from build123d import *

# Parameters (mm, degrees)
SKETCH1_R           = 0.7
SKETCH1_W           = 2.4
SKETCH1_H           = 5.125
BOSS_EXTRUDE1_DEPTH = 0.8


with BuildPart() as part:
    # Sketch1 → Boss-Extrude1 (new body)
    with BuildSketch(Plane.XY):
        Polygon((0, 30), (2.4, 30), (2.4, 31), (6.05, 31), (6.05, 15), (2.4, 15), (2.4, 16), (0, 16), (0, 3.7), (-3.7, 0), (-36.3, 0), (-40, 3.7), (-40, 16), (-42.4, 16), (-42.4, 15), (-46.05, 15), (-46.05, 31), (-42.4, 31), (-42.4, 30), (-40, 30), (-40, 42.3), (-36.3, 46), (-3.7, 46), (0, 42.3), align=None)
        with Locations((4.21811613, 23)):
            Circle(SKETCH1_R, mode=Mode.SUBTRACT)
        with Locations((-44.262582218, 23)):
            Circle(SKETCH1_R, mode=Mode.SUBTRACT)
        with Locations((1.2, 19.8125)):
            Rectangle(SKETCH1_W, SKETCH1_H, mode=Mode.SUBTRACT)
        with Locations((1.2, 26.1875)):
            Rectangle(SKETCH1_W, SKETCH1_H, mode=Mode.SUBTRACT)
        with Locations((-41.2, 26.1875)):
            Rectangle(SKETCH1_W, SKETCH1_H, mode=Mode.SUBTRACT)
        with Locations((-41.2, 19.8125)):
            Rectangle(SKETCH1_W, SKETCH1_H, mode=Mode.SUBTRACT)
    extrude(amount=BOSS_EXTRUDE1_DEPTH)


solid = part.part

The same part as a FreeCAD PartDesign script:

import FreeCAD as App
import Part
import Sketcher
Q = App.Units.Quantity

doc = App.newDocument("Part")
body = doc.addObject("PartDesign::Body", "Body")

# Sketch on XY plane
sketch1 = body.newObject("Sketcher::SketchObject", "Sketch")
sketch1.AttachmentSupport = (doc.getObject("XY_Plane"), [""])
sketch1.MapMode = "FlatFace"
sketch1.addGeometry([
    Part.LineSegment(App.Vector(2.4, 30, 0), App.Vector(0, 30, 0)),  # 0
    Part.LineSegment(App.Vector(0, 30, 0), App.Vector(0, 42.3, 0)),  # 1
    Part.LineSegment(App.Vector(0, 42.3, 0), App.Vector(-3.7, 46, 0)),  # 2
    Part.LineSegment(App.Vector(-3.7, 46, 0), App.Vector(-36.3, 46, 0)),  # 3
    Part.LineSegment(App.Vector(-36.3, 46, 0), App.Vector(-40, 42.3, 0)),  # 4
    Part.LineSegment(App.Vector(-40, 42.3, 0), App.Vector(-40, 30, 0)),  # 5
    Part.LineSegment(App.Vector(-40, 30, 0), App.Vector(-42.4, 30, 0)),  # 6
    Part.LineSegment(App.Vector(-42.4, 30, 0), App.Vector(-42.4, 31, 0)),  # 7
    Part.LineSegment(App.Vector(-42.4, 31, 0), App.Vector(-46.05, 31, 0)),  # 8
    Part.LineSegment(App.Vector(-46.05, 31, 0), App.Vector(-46.05, 15, 0)),  # 9
    Part.LineSegment(App.Vector(-46.05, 15, 0), App.Vector(-42.4, 15, 0)),  # 10
    Part.LineSegment(App.Vector(-42.4, 15, 0), App.Vector(-42.4, 16, 0)),  # 11
    Part.LineSegment(App.Vector(-42.4, 16, 0), App.Vector(-40, 16, 0)),  # 12
    Part.LineSegment(App.Vector(-40, 16, 0), App.Vector(-40, 3.7, 0)),  # 13
    Part.LineSegment(App.Vector(-40, 3.7, 0), App.Vector(-36.3, 0, 0)),  # 14
    Part.LineSegment(App.Vector(-36.3, 0, 0), App.Vector(-3.7, 0, 0)),  # 15
    Part.LineSegment(App.Vector(-3.7, 0, 0), App.Vector(0, 3.7, 0)),  # 16
    Part.LineSegment(App.Vector(0, 3.7, 0), App.Vector(0, 16, 0)),  # 17
    Part.LineSegment(App.Vector(0, 16, 0), App.Vector(2.4, 16, 0)),  # 18
    Part.LineSegment(App.Vector(2.4, 16, 0), App.Vector(2.4, 15, 0)),  # 19
    Part.LineSegment(App.Vector(2.4, 15, 0), App.Vector(6.05, 15, 0)),  # 20
    Part.LineSegment(App.Vector(6.05, 15, 0), App.Vector(6.05, 31, 0)),  # 21
    Part.LineSegment(App.Vector(6.05, 31, 0), App.Vector(2.4, 31, 0)),  # 22
    Part.LineSegment(App.Vector(2.4, 31, 0), App.Vector(2.4, 30, 0)),  # 23
    Part.LineSegment(App.Vector(0, 17.25, 0), App.Vector(0, 22.375, 0)),  # 24
    Part.LineSegment(App.Vector(0, 22.375, 0), App.Vector(2.4, 22.375, 0)),  # 25
    Part.LineSegment(App.Vector(2.4, 22.375, 0), App.Vector(2.4, 17.25, 0)),  # 26
    Part.LineSegment(App.Vector(2.4, 17.25, 0), App.Vector(0, 17.25, 0)),  # 27
    Part.LineSegment(App.Vector(-42.4, 17.25, 0), App.Vector(-42.4, 22.375, 0)),  # 28
    Part.LineSegment(App.Vector(-42.4, 22.375, 0), App.Vector(-40, 22.375, 0)),  # 29
    Part.LineSegment(App.Vector(-40, 22.375, 0), App.Vector(-40, 17.25, 0)),  # 30
    Part.LineSegment(App.Vector(-40, 17.25, 0), App.Vector(-42.4, 17.25, 0)),  # 31
    Part.Circle(App.Vector(4.218116, 23, 0), App.Vector(0, 0, 1), 0.7),  # 32
    Part.LineSegment(App.Vector(0, 23.625, 0), App.Vector(0, 28.75, 0)),  # 33
    Part.LineSegment(App.Vector(0, 28.75, 0), App.Vector(2.4, 28.75, 0)),  # 34
    Part.LineSegment(App.Vector(2.4, 28.75, 0), App.Vector(2.4, 23.625, 0)),  # 35
    Part.LineSegment(App.Vector(2.4, 23.625, 0), App.Vector(0, 23.625, 0)),  # 36
    Part.Circle(App.Vector(-44.262582, 23, 0), App.Vector(0, 0, 1), 0.7),  # 37
    Part.LineSegment(App.Vector(-42.4, 23.625, 0), App.Vector(-42.4, 28.75, 0)),  # 38
    Part.LineSegment(App.Vector(-42.4, 28.75, 0), App.Vector(-40, 28.75, 0)),  # 39
    Part.LineSegment(App.Vector(-40, 28.75, 0), App.Vector(-40, 23.625, 0)),  # 40
    Part.LineSegment(App.Vector(-40, 23.625, 0), App.Vector(-42.4, 23.625, 0)),  # 41
], False)
sketch1.addConstraint([
    Sketcher.Constraint("Coincident", 0, 2, 1, 1),
    Sketcher.Constraint("Coincident", 1, 2, 2, 1),
    Sketcher.Constraint("Coincident", 2, 2, 3, 1),
    Sketcher.Constraint("Coincident", 3, 2, 4, 1),
    Sketcher.Constraint("Coincident", 4, 2, 5, 1),
    Sketcher.Constraint("Coincident", 5, 2, 6, 1),
    Sketcher.Constraint("Coincident", 6, 2, 7, 1),
    Sketcher.Constraint("Coincident", 7, 2, 8, 1),
    Sketcher.Constraint("Coincident", 8, 2, 9, 1),
    Sketcher.Constraint("Coincident", 9, 2, 10, 1),
    Sketcher.Constraint("Coincident", 10, 2, 11, 1),
    Sketcher.Constraint("Coincident", 11, 2, 12, 1),
    Sketcher.Constraint("Coincident", 12, 2, 13, 1),
    Sketcher.Constraint("Coincident", 13, 2, 14, 1),
    Sketcher.Constraint("Coincident", 14, 2, 15, 1),
    Sketcher.Constraint("Coincident", 15, 2, 16, 1),
    Sketcher.Constraint("Coincident", 16, 2, 17, 1),
    Sketcher.Constraint("Coincident", 17, 2, 18, 1),
    Sketcher.Constraint("Coincident", 18, 2, 19, 1),
    Sketcher.Constraint("Coincident", 19, 2, 20, 1),
    Sketcher.Constraint("Coincident", 20, 2, 21, 1),
    Sketcher.Constraint("Coincident", 21, 2, 22, 1),
    Sketcher.Constraint("Coincident", 22, 2, 23, 1),
    Sketcher.Constraint("Coincident", 23, 2, 0, 1),
    Sketcher.Constraint("Coincident", 24, 2, 25, 1),
    Sketcher.Constraint("Coincident", 25, 2, 26, 1),
    Sketcher.Constraint("Coincident", 26, 2, 27, 1),
    Sketcher.Constraint("Coincident", 27, 2, 24, 1),
    Sketcher.Constraint("Coincident", 28, 2, 29, 1),
    Sketcher.Constraint("Coincident", 29, 2, 30, 1),
    Sketcher.Constraint("Coincident", 30, 2, 31, 1),
    Sketcher.Constraint("Coincident", 31, 2, 28, 1),
    Sketcher.Constraint("Coincident", 33, 2, 34, 1),
    Sketcher.Constraint("Coincident", 34, 2, 35, 1),
    Sketcher.Constraint("Coincident", 35, 2, 36, 1),
    Sketcher.Constraint("Coincident", 36, 2, 33, 1),
    Sketcher.Constraint("Coincident", 38, 2, 39, 1),
    Sketcher.Constraint("Coincident", 39, 2, 40, 1),
    Sketcher.Constraint("Coincident", 40, 2, 41, 1),
    Sketcher.Constraint("Coincident", 41, 2, 38, 1),
    Sketcher.Constraint("Horizontal", 0),
    Sketcher.Constraint("Vertical", 1),
    Sketcher.Constraint("Horizontal", 3),
    Sketcher.Constraint("Vertical", 5),
    Sketcher.Constraint("Horizontal", 6),
    Sketcher.Constraint("Vertical", 7),
    Sketcher.Constraint("Horizontal", 8),
    Sketcher.Constraint("Vertical", 9),
    Sketcher.Constraint("Horizontal", 10),
    Sketcher.Constraint("Vertical", 11),
    Sketcher.Constraint("Horizontal", 12),
    Sketcher.Constraint("Vertical", 13),
    Sketcher.Constraint("Horizontal", 15),
    Sketcher.Constraint("Vertical", 17),
    Sketcher.Constraint("Horizontal", 18),
    Sketcher.Constraint("Vertical", 19),
    Sketcher.Constraint("Horizontal", 20),
    Sketcher.Constraint("Vertical", 21),
    Sketcher.Constraint("Horizontal", 22),
    Sketcher.Constraint("Vertical", 23),
    Sketcher.Constraint("Vertical", 24),
    Sketcher.Constraint("Horizontal", 25),
    Sketcher.Constraint("Vertical", 26),
    Sketcher.Constraint("Horizontal", 27),
    Sketcher.Constraint("Vertical", 28),
    Sketcher.Constraint("Horizontal", 29),
    Sketcher.Constraint("Vertical", 30),
    Sketcher.Constraint("Horizontal", 31),
    Sketcher.Constraint("Vertical", 33),
    Sketcher.Constraint("Horizontal", 34),
    Sketcher.Constraint("Vertical", 35),
    Sketcher.Constraint("Horizontal", 36),
    Sketcher.Constraint("Vertical", 38),
    Sketcher.Constraint("Horizontal", 39),
    Sketcher.Constraint("Vertical", 40),
    Sketcher.Constraint("Horizontal", 41),
    Sketcher.Constraint("Equal", 32, 37),
    Sketcher.Constraint("PointOnObject", 0, 2, -2),
    Sketcher.Constraint("PointOnObject", 14, 2, -1),
    Sketcher.Constraint("PointOnObject", 16, 2, -2),
    Sketcher.Constraint("PointOnObject", 24, 2, -2),
    Sketcher.Constraint("PointOnObject", 33, 2, -2),
    Sketcher.Constraint("Perpendicular", 2, 4),
    Sketcher.Constraint("Perpendicular", 4, 14),
    Sketcher.Constraint("Perpendicular", 14, 16),
    Sketcher.Constraint("Horizontal", 32, 3, 37, 3),
    Sketcher.Constraint("Horizontal", 1, 2, 4, 2),
    Sketcher.Constraint("Horizontal", 0, 2, 5, 2),
    Sketcher.Constraint("Horizontal", 13, 2, 16, 2),
    Sketcher.Constraint("Horizontal", 12, 2, 17, 2),
    Sketcher.Constraint("Horizontal", 10, 2, 19, 2),
    Sketcher.Constraint("Horizontal", 8, 2, 21, 2),
    Sketcher.Constraint("Horizontal", 25, 2, 28, 2),
    Sketcher.Constraint("Horizontal", 27, 2, 30, 2),
    Sketcher.Constraint("Horizontal", 34, 2, 38, 2),
    Sketcher.Constraint("Horizontal", 36, 2, 40, 2),
    Sketcher.Constraint("Vertical", 7, 2, 10, 2),
    Sketcher.Constraint("Vertical", 5, 2, 12, 2),
    Sketcher.Constraint("Vertical", 3, 2, 14, 2),
    Sketcher.Constraint("Vertical", 2, 2, 15, 2),
    Sketcher.Constraint("Vertical", 19, 2, 22, 2),
    Sketcher.Constraint("Vertical", 23, 2, 25, 2),
    Sketcher.Constraint("Vertical", 11, 2, 28, 2),
    Sketcher.Constraint("Vertical", 13, 2, 29, 2),
    Sketcher.Constraint("Vertical", 26, 2, 34, 2),
    Sketcher.Constraint("Vertical", 31, 2, 38, 2),
    Sketcher.Constraint("Vertical", 30, 2, 39, 2),
    Sketcher.Constraint("Equal", 0, 6),
    Sketcher.Constraint("Equal", 10, 20),
    Sketcher.Constraint("Equal", 7, 11),
    Sketcher.Constraint("Equal", 5, 13),
    Sketcher.Constraint("Equal", 30, 33),
    Sketcher.Constraint("Diameter", 32, Q("1.4 mm")),
    Sketcher.Constraint("DistanceY", 7, 1, 7, 2, Q("1 mm")),
    Sketcher.Constraint("DistanceY", 9, 2, 9, 1, Q("16 mm")),
    Sketcher.Constraint("DistanceX", 0, 2, 0, 1, Q("2.4 mm")),
    Sketcher.Constraint("DistanceX", 3, 2, 3, 1, Q("32.6 mm")),
    Sketcher.Constraint("DistanceY", 1, 1, 1, 2, Q("12.3 mm")),
    Sketcher.Constraint("DistanceY", -1, 1, 32, 3, Q("23 mm")),
    Sketcher.Constraint("DistanceY", -1, 1, 0, 2, Q("30 mm")),
    Sketcher.Constraint("DistanceX", 8, 2, 8, 1, Q("3.65 mm")),
    Sketcher.Constraint("DistanceY", 24, 1, 24, 2, Q("5.125 mm")),
    Sketcher.Constraint("DistanceY", -1, 1, 26, 2, Q("17.25 mm")),
    Sketcher.Constraint("DistanceY", -1, 1, 33, 2, Q("28.75 mm")),
    Sketcher.Constraint("DistanceX", 37, 3, 32, 3, Q("48.480698 mm")),
    Sketcher.Constraint("DistanceX", -1, 1, 32, 3, Q("4.218116 mm")),
])
pad1 = body.newObject("PartDesign::Pad", "Pad")
pad1.Profile = sketch1
pad1.Length = 0.8

doc.recompute()
